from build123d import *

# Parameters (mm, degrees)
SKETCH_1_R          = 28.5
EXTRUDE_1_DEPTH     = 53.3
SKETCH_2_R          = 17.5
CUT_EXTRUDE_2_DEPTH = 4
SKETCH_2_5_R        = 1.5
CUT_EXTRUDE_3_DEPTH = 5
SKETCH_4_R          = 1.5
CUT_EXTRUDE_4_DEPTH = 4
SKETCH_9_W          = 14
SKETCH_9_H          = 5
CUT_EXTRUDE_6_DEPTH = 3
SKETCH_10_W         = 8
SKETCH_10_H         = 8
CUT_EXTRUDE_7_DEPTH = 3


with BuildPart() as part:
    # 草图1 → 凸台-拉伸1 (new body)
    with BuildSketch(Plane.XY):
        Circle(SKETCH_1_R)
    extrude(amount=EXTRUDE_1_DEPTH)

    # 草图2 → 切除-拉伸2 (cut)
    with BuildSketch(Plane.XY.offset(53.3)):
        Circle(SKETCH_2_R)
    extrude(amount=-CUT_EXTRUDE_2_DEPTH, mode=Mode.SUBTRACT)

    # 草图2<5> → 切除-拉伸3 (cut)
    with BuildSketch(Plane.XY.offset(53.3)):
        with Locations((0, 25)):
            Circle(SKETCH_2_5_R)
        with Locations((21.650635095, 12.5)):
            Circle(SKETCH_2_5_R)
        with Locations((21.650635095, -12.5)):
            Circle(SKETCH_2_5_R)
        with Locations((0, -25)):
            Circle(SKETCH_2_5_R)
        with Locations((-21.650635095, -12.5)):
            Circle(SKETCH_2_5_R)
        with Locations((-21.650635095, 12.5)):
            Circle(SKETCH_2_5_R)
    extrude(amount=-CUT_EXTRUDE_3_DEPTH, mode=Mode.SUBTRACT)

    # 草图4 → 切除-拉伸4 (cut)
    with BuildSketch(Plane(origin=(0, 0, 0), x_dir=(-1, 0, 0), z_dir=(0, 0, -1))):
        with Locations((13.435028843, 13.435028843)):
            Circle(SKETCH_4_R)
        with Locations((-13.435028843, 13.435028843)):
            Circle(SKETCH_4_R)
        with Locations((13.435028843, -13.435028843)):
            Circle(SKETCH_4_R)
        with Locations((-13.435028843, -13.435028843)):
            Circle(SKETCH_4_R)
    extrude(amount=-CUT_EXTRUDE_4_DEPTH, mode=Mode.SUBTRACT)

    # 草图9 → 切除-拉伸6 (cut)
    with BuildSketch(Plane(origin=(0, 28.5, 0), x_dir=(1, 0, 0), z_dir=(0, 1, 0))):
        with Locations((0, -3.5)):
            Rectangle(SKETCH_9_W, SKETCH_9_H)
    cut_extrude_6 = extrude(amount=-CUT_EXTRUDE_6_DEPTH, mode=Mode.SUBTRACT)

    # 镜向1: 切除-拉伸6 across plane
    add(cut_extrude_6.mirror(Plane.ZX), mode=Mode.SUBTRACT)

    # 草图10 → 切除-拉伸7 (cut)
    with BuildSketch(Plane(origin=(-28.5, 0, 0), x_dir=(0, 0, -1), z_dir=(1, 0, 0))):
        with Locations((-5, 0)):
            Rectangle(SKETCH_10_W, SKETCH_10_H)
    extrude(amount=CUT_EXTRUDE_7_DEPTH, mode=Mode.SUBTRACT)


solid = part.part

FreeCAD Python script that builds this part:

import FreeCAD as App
import Part
import Sketcher

V = App.Vector

doc = App.newDocument("Part")
body = doc.addObject("PartDesign::Body", "Body")

# Sketch on XY plane
sketch1 = body.newObject("Sketcher::SketchObject", "Sketch")
sketch1.AttachmentSupport = (doc.getObject("XY_Plane"), [""])
sketch1.MapMode = "FlatFace"
sketch1.addGeometry(Part.Circle(V(0, 0, 0), V(0, 0, 1), 28.5), False)
sketch1.addConstraint(Sketcher.Constraint("Coincident", 0, 3, -1, 1))
sketch1.addConstraint(Sketcher.Constraint("Diameter", 0, 57.0))
pad1 = body.newObject("PartDesign::Pad", "Pad")
pad1.Profile = sketch1
pad1.Length = 53.3

# Sketch on XY plane
sketch2 = body.newObject("Sketcher::SketchObject", "Sketch001")
sketch2.AttachmentSupport = (doc.getObject("XY_Plane"), [""])
sketch2.MapMode = "FlatFace"
sketch2.AttachmentOffset = App.Placement(V(0, 0, 53.3), App.Rotation())
sketch2.addGeometry(Part.Circle(V(0, 0, 0), V(0, 0, 1), 17.5), False)
sketch2.addConstraint(Sketcher.Constraint("Coincident", 0, 3, -1, 1))
sketch2.addConstraint(Sketcher.Constraint("Diameter", 0, 35.0))
pocket1 = body.newObject("PartDesign::Pocket", "Pocket")
pocket1.Profile = sketch2
pocket1.Length = 4

# Sketch on XY plane
sketch3 = body.newObject("Sketcher::SketchObject", "Sketch002")
sketch3.AttachmentSupport = (doc.getObject("XY_Plane"), [""])
sketch3.MapMode = "FlatFace"
sketch3.AttachmentOffset = App.Placement(V(0, 0, 53.3), App.Rotation())
sketch3.addGeometry(Part.Circle(V(0, 25, 0), V(0, 0, 1), 1.5), False)
sketch3.addGeometry(Part.Circle(V(21.650635, 12.5, 0), V(0, 0, 1), 1.5), False)
sketch3.addGeometry(Part.Circle(V(21.650635, -12.5, 0), V(0, 0, 1), 1.5), False)
sketch3.addGeometry(Part.Circle(V(0, -25, 0), V(0, 0, 1), 1.5), False)
sketch3.addGeometry(Part.Circle(V(-21.650635, -12.5, 0), V(0, 0, 1), 1.5), False)
sketch3.addGeometry(Part.Circle(V(-21.650635, 12.5, 0), V(0, 0, 1), 1.5), False)
sketch3.addConstraint(Sketcher.Constraint("Equal", 0, 1))
sketch3.addConstraint(Sketcher.Constraint("Equal", 1, 2))
sketch3.addConstraint(Sketcher.Constraint("Equal", 2, 3))
sketch3.addConstraint(Sketcher.Constraint("Equal", 3, 4))
sketch3.addConstraint(Sketcher.Constraint("Equal", 4, 5))
sketch3.addConstraint(Sketcher.Constraint("Symmetric", 0, 3, 3, 3, -1, 1))
sketch3.addConstraint(Sketcher.Constraint("Symmetric", 1, 3, 4, 3, -1, 1))
sketch3.addConstraint(Sketcher.Constraint("Symmetric", 2, 3, 5, 3, -1, 1))
sketch3.addConstraint(Sketcher.Constraint("Symmetric", 2, 3, 4, 3, -2))
sketch3.addConstraint(Sketcher.Constraint("PointOnObject", 0, 3, -2))
sketch3.addConstraint(Sketcher.Constraint("Diameter", 0, 3.0))
sketch3.addConstraint(Sketcher.Constraint("DistanceY", -1, 1, 0, 3, 25.0))
sketch3.addConstraint(Sketcher.Constraint("DistanceY", 2, 3, 1, 3, 25.0))
sketch3.addConstraint(Sketcher.Constraint("DistanceX", 4, 3, 2, 3, 43.30127))
pocket2 = body.newObject("PartDesign::Pocket", "Pocket001")
pocket2.Profile = sketch3
pocket2.Length = 5

# Sketch on XY plane
sketch4 = body.newObject("Sketcher::SketchObject", "Sketch003")
sketch4.AttachmentSupport = (doc.getObject("XY_Plane"), [""])
sketch4.MapMode = "FlatFace"
sketch4.addGeometry(Part.Circle(V(-13.435029, 13.435029, 0), V(0, 0, 1), 1.5), False)
sketch4.addGeometry(Part.Circle(V(13.435029, 13.435029, 0), V(0, 0, 1), 1.5), False)
sketch4.addGeometry(Part.Circle(V(-13.435029, -13.435029, 0), V(0, 0, 1), 1.5), False)
sketch4.addGeometry(Part.Circle(V(13.435029, -13.435029, 0), V(0, 0, 1), 1.5), False)
sketch4.addConstraint(Sketcher.Constraint("Equal", 0, 1))
sketch4.addConstraint(Sketcher.Constraint("Equal", 1, 2))
sketch4.addConstraint(Sketcher.Constraint("Equal", 2, 3))
sketch4.addConstraint(Sketcher.Constraint("Symmetric", 1, 3, 2, 3, -1, 1))
sketch4.addConstraint(Sketcher.Constraint("Symmetric", 0, 3, 3, 3, -1, 1))
sketch4.addConstraint(Sketcher.Constraint("Symmetric", 0, 3, 1, 3, -2))
sketch4.addConstraint(Sketcher.Constraint("Diameter", 0, 3.0))
sketch4.addConstraint(Sketcher.Constraint("DistanceX", 0, 3, -1, 1, 13.435029))
sketch4.addConstraint(Sketcher.Constraint("DistanceY", -1, 1, 0, 3, 13.435029))
pocket3 = body.newObject("PartDesign::Pocket", "Pocket002")
pocket3.Profile = sketch4
pocket3.Length = 4
pocket3.Reversed = True

# Sketch on XZ plane
sketch5 = body.newObject("Sketcher::SketchObject", "Sketch004")
sketch5.AttachmentSupport = (doc.getObject("XZ_Plane"), [""])
sketch5.MapMode = "FlatFace"
sketch5.AttachmentOffset = App.Placement(V(0, 0, -28.5), App.Rotation())
sketch5.addGeometry(Part.LineSegment(V(-7, 1, 0), V(-7, 6, 0)), False)
sketch5.addGeometry(Part.LineSegment(V(-7, 6, 0), V(7, 6, 0)), False)
sketch5.addGeometry(Part.LineSegment(V(7, 6, 0), V(7, 1, 0)), False)
sketch5.addGeometry(Part.LineSegment(V(7, 1, 0), V(-7, 1, 0)), False)
sketch5.addConstraint(Sketcher.Constraint("Coincident", 0, 2, 1, 1))
sketch5.addConstraint(Sketcher.Constraint("Coincident", 1, 2, 2, 1))
sketch5.addConstraint(Sketcher.Constraint("Coincident", 2, 2, 3, 1))
sketch5.addConstraint(Sketcher.Constraint("Coincident", 3, 2, 0, 1))
sketch5.addConstraint(Sketcher.Constraint("Vertical", 0))
sketch5.addConstraint(Sketcher.Constraint("Horizontal", 1))
sketch5.addConstraint(Sketcher.Constraint("Vertical", 2))
sketch5.addConstraint(Sketcher.Constraint("Horizontal", 3))
sketch5.addConstraint(Sketcher.Constraint("DistanceX", 1, 1, 1, 2, 14.0))
sketch5.addConstraint(Sketcher.Constraint("DistanceY", 0, 1, 0, 2, 5.0))
sketch5.addConstraint(Sketcher.Constraint("DistanceX", 0, 2, -1, 1, 7.0))
sketch5.addConstraint(Sketcher.Constraint("DistanceY", -1, 1, 0, 2, 6.0))
pocket4 = body.newObject("PartDesign::Pocket", "Pocket003")
pocket4.Profile = sketch5
pocket4.Length = 3
pocket4.Reversed = True
doc.recompute()

mirrored = body.newObject("PartDesign::Mirrored", "Mirrored")
mirrored.Originals = [pocket4]
mirrored.MirrorPlane = (doc.getObject("XZ_Plane"), [""])
body.Tip = mirrored

# Sketch on YZ plane
sketch6 = body.newObject("Sketcher::SketchObject", "Sketch005")
sketch6.AttachmentSupport = (doc.getObject("YZ_Plane"), [""])
sketch6.MapMode = "FlatFace"
sketch6.AttachmentOffset = App.Placement(V(0, 0, -28.5), App.Rotation())
sketch6.addGeometry(Part.LineSegment(V(4, 9, 0), V(-4, 9, 0)), False)
sketch6.addGeometry(Part.LineSegment(V(-4, 9, 0), V(-4, 1, 0)), False)
sketch6.addGeometry(Part.LineSegment(V(-4, 1, 0), V(4, 1, 0)), False)
sketch6.addGeometry(Part.LineSegment(V(4, 1, 0), V(4, 9, 0)), False)
sketch6.addConstraint(Sketcher.Constraint("Coincident", 0, 2, 1, 1))
sketch6.addConstraint(Sketcher.Constraint("Coincident", 1, 2, 2, 1))
sketch6.addConstraint(Sketcher.Constraint("Coincident", 2, 2, 3, 1))
sketch6.addConstraint(Sketcher.Constraint("Coincident", 3, 2, 0, 1))
sketch6.addConstraint(Sketcher.Constraint("Horizontal", 0))
sketch6.addConstraint(Sketcher.Constraint("Vertical", 1))
sketch6.addConstraint(Sketcher.Constraint("Horizontal", 2))
sketch6.addConstraint(Sketcher.Constraint("Vertical", 3))
sketch6.addConstraint(Sketcher.Constraint("Equal", 2, 1))
sketch6.addConstraint(Sketcher.Constraint("DistanceX", 0, 2, 0, 1, 8.0))
sketch6.addConstraint(Sketcher.Constraint("DistanceX", 0, 2, -1, 1, 4.0))
sketch6.addConstraint(Sketcher.Constraint("DistanceY", -1, 1, 0, 2, 9.0))
pocket5 = body.newObject("PartDesign::Pocket", "Pocket004")
pocket5.Profile = sketch6
pocket5.Length = 3
pocket5.Reversed = True

doc.recompute()
